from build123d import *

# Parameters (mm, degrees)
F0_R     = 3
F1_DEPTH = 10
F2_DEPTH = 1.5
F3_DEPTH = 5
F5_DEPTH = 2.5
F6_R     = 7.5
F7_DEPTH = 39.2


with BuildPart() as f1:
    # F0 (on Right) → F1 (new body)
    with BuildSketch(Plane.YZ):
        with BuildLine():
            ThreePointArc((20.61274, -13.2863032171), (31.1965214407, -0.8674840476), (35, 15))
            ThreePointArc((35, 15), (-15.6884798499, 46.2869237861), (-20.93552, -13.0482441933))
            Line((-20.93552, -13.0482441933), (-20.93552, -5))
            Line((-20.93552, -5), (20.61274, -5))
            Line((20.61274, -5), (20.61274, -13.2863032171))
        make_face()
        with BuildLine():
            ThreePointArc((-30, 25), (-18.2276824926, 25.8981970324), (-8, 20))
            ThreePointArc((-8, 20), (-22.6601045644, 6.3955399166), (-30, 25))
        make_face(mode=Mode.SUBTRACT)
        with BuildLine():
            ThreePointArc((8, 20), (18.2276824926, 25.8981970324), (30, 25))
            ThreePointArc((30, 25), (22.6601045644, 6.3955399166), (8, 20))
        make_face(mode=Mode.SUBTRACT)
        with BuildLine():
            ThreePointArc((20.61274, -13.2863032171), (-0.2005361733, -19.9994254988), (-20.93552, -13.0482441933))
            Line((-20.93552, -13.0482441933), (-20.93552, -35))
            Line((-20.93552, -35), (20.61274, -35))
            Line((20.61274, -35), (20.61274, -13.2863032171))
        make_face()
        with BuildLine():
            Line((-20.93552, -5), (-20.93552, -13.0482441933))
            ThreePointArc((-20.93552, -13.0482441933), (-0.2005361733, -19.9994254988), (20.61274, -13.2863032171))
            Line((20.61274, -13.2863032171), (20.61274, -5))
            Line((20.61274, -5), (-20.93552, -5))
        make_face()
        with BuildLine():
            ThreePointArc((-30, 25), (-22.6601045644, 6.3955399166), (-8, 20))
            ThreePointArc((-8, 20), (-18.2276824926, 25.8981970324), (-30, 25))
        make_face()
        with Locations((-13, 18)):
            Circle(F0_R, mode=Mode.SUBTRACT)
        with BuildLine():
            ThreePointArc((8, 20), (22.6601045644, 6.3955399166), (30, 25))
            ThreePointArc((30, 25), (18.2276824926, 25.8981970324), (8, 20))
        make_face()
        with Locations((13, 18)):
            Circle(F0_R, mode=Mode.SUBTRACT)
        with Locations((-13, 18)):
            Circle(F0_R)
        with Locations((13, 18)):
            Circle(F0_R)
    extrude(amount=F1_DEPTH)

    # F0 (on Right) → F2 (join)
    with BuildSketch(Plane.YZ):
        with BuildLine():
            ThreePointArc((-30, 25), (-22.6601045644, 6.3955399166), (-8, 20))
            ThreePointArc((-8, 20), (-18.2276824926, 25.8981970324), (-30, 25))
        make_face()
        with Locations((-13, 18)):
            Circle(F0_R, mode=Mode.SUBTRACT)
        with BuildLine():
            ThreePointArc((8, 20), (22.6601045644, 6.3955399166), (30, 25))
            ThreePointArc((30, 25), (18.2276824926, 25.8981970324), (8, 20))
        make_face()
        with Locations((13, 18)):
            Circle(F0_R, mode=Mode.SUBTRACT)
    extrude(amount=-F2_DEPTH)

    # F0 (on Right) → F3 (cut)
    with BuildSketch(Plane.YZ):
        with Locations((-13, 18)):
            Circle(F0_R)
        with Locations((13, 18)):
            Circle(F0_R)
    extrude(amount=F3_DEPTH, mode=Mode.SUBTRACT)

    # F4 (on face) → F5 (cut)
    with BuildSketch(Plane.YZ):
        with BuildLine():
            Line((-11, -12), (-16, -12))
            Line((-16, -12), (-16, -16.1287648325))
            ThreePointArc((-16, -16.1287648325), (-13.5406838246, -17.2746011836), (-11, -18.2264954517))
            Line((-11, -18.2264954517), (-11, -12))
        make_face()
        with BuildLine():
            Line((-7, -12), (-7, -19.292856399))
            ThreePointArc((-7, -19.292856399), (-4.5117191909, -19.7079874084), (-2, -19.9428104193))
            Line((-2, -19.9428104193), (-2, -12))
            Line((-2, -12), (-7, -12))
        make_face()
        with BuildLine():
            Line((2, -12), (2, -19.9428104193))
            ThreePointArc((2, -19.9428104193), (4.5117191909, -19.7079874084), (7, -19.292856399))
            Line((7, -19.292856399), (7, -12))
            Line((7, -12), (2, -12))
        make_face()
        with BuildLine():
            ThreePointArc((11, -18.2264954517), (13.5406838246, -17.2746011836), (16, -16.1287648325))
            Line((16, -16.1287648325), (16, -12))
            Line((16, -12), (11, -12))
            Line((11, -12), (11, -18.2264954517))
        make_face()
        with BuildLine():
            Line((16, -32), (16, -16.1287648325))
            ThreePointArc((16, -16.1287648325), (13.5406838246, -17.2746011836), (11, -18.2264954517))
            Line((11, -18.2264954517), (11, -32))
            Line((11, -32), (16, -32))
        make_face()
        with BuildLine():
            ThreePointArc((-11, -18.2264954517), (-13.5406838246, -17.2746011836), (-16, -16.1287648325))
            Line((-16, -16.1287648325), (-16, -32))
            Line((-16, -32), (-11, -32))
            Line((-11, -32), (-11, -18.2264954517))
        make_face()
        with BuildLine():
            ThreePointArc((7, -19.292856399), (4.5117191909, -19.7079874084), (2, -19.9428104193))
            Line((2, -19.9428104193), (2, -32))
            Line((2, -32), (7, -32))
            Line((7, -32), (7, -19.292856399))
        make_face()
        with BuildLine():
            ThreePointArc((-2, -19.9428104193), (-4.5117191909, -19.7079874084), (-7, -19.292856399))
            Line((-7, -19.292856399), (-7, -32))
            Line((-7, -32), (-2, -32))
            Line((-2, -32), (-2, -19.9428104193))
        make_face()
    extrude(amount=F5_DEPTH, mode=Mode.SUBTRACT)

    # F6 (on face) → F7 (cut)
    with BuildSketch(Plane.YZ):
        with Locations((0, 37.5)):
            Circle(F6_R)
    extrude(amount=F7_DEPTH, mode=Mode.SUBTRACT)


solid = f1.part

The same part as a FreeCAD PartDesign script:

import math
import FreeCAD as App
import Part
import Sketcher
Q = App.Units.Quantity

doc = App.newDocument("Part")
body = doc.addObject("PartDesign::Body", "Body")

sketch1 = doc.addObject("Sketcher::SketchObject", "Sketch")
body.addObject(sketch1)
sketch1.AttachmentSupport = (doc.YZ_Plane, [""])
sketch1.MapMode = "FlatFace"
sketch1.addGeometry(Part.ArcOfCircle(Part.Circle(App.Vector(0, 15, 0), App.Vector(0, 0, 1), 35), math.radians(-54), math.radians(0)), False)
sketch1.addGeometry(Part.ArcOfCircle(Part.Circle(App.Vector(0, 15, 0), App.Vector(0, 0, 1), 35), math.radians(0), math.radians(233)), False)
sketch1.addGeometry(Part.LineSegment(App.Vector(-21, -13, 0), App.Vector(-21, -35, 0)), False)
sketch1.addGeometry(Part.LineSegment(App.Vector(-21, -35, 0), App.Vector(21, -35, 0)), False)
sketch1.addGeometry(Part.LineSegment(App.Vector(21, -35, 0), App.Vector(21, -13, 0)), False)
sketch1.addConstraint(Sketcher.Constraint("Tangent", 0, 2, 1, 1))
sketch1.addConstraint(Sketcher.Constraint("Coincident", 1, 2, 2, 1))
sketch1.addConstraint(Sketcher.Constraint("Coincident", 2, 2, 3, 1))
sketch1.addConstraint(Sketcher.Constraint("Coincident", 3, 2, 4, 1))
sketch1.addConstraint(Sketcher.Constraint("Coincident", 4, 2, 0, 1))
sketch1.addConstraint(Sketcher.Constraint("Vertical", 2))
sketch1.addConstraint(Sketcher.Constraint("Horizontal", 3))
sketch1.addConstraint(Sketcher.Constraint("Vertical", 4))
sketch1.addConstraint(Sketcher.Constraint("Equal", 0, 1))
sketch1.addConstraint(Sketcher.Constraint("PointOnObject", 0, 3, -2))
sketch1.addConstraint(Sketcher.Constraint("Horizontal", 1, 3, 0, 2))
sketch1.addConstraint(Sketcher.Constraint("Radius", 0, Q("35 mm")))
sketch1.addConstraint(Sketcher.Constraint("DistanceY", -1, 1, 0, 3, Q("15 mm")))
sketch1.addConstraint(Sketcher.Constraint("DistanceY", 2, 2, -1, 1, Q("35 mm")))
sketch1.addConstraint(Sketcher.Constraint("DistanceX", 3, 1, 3, 2, Q("41.54826 mm")))
sketch1.addConstraint(Sketcher.Constraint("DistanceY", 2, 2, 2, 1, Q("21.951756 mm")))
pad1 = doc.addObject("PartDesign::Pad", "Pad")
body.addObject(pad1)
pad1.Profile = sketch1
pad1.Length = 10

sketch2 = doc.addObject("Sketcher::SketchObject", "Sketch001")
body.addObject(sketch2)
sketch2.AttachmentSupport = (doc.YZ_Plane, [""])
sketch2.MapMode = "FlatFace"
sketch2.addGeometry(Part.ArcOfCircle(Part.Circle(App.Vector(-20, 18.2, 0), App.Vector(0, 0, 1), 12.1), math.radians(146), math.radians(369)), False)
sketch2.addGeometry(Part.ArcOfCircle(Part.Circle(App.Vector(-22.7, 6.4, 0), App.Vector(0, 0, 1), 20), math.radians(43), math.radians(112)), False)
sketch2.addGeometry(Part.Circle(App.Vector(-13, 18, 0), App.Vector(0, 0, 1), 3), False)
sketch2.addGeometry(Part.ArcOfCircle(Part.Circle(App.Vector(20, 18.2, 0), App.Vector(0, 0, 1), 12.1), math.radians(171), math.radians(394)), False)
sketch2.addGeometry(Part.ArcOfCircle(Part.Circle(App.Vector(22.7, 6.4, 0), App.Vector(0, 0, 1), 20), math.radians(68), math.radians(137)), False)
sketch2.addGeometry(Part.Circle(App.Vector(13, 18, 0), App.Vector(0, 0, 1), 3), False)
sketch2.addConstraint(Sketcher.Constraint("Coincident", 0, 1, 1, 2))
sketch2.addConstraint(Sketcher.Constraint("Coincident", 1, 1, 0, 2))
sketch2.addConstraint(Sketcher.Constraint("Coincident", 3, 1, 4, 2))
sketch2.addConstraint(Sketcher.Constraint("Coincident", 4, 1, 3, 2))
sketch2.addConstraint(Sketcher.Constraint("Equal", 0, 3))
sketch2.addConstraint(Sketcher.Constraint("Equal", 1, 4))
sketch2.addConstraint(Sketcher.Constraint("Equal", 2, 5))
sketch2.addConstraint(Sketcher.Constraint("Symmetric", 0, 3, 3, 3, -2))
sketch2.addConstraint(Sketcher.Constraint("Symmetric", 1, 3, 4, 3, -2))
sketch2.addConstraint(Sketcher.Constraint("Symmetric", 2, 3, 5, 3, -2))
sketch2.addConstraint(Sketcher.Constraint("Diameter", 2, Q("6 mm")))
sketch2.addConstraint(Sketcher.Constraint("Radius", 1, Q("20 mm")))
sketch2.addConstraint(Sketcher.Constraint("DistanceX", 2, 3, -1, 1, Q("13 mm")))
sketch2.addConstraint(Sketcher.Constraint("DistanceY", -1, 1, 2, 3, Q("18 mm")))
sketch2.addConstraint(Sketcher.Constraint("DistanceX", 0, 1, -1, 1, Q("30 mm")))
sketch2.addConstraint(Sketcher.Constraint("DistanceY", -1, 1, 0, 1, Q("25 mm")))
sketch2.addConstraint(Sketcher.Constraint("DistanceX", 1, 1, -1, 1, Q("8 mm")))
sketch2.addConstraint(Sketcher.Constraint("DistanceY", -1, 1, 1, 1, Q("20 mm")))
sketch2.addConstraint(Sketcher.Constraint("Radius", 0, Q("12.110097 mm")))
pad2 = doc.addObject("PartDesign::Pad", "Pad001")
body.addObject(pad2)
pad2.Profile = sketch2
pad2.Length = 1.5
pad2.Reversed = True

sketch3 = doc.addObject("Sketcher::SketchObject", "Sketch002")
body.addObject(sketch3)
sketch3.AttachmentSupport = (doc.YZ_Plane, [""])
sketch3.MapMode = "FlatFace"
sketch3.addGeometry(Part.Circle(App.Vector(-13, 18, 0), App.Vector(0, 0, 1), 3), False)
sketch3.addGeometry(Part.Circle(App.Vector(13, 18, 0), App.Vector(0, 0, 1), 3), False)
sketch3.addConstraint(Sketcher.Constraint("Equal", 0, 1))
sketch3.addConstraint(Sketcher.Constraint("Symmetric", 0, 3, 1, 3, -2))
sketch3.addConstraint(Sketcher.Constraint("Diameter", 0, Q("6 mm")))
sketch3.addConstraint(Sketcher.Constraint("DistanceX", 0, 3, -1, 1, Q("13 mm")))
sketch3.addConstraint(Sketcher.Constraint("DistanceY", -1, 1, 0, 3, Q("18 mm")))
pocket1 = doc.addObject("PartDesign::Pocket", "Pocket")
body.addObject(pocket1)
pocket1.Profile = sketch3
pocket1.Length = 5
pocket1.Reversed = True

sketch4 = doc.addObject("Sketcher::SketchObject", "Sketch003")
body.addObject(sketch4)
sketch4.AttachmentSupport = (doc.YZ_Plane, [""])
sketch4.MapMode = "FlatFace"
sketch4.addGeometry(Part.LineSegment(App.Vector(-11, -12, 0), App.Vector(-16, -12, 0)), False)
sketch4.addGeometry(Part.LineSegment(App.Vector(-16, -12, 0), App.Vector(-16, -32, 0)), False)
sketch4.addGeometry(Part.LineSegment(App.Vector(-16, -32, 0), App.Vector(-11, -32, 0)), False)
sketch4.addGeometry(Part.LineSegment(App.Vector(-11, -32, 0), App.Vector(-11, -12, 0)), False)
sketch4.addGeometry(Part.LineSegment(App.Vector(-7, -12, 0), App.Vector(-7, -32, 0)), False)
sketch4.addGeometry(Part.LineSegment(App.Vector(-7, -32, 0), App.Vector(-2, -32, 0)), False)
sketch4.addGeometry(Part.LineSegment(App.Vector(-2, -32, 0), App.Vector(-2, -12, 0)), False)
sketch4.addGeometry(Part.LineSegment(App.Vector(-2, -12, 0), App.Vector(-7, -12, 0)), False)
sketch4.addGeometry(Part.LineSegment(App.Vector(2, -12, 0), App.Vector(2, -32, 0)), False)
sketch4.addGeometry(Part.LineSegment(App.Vector(2, -32, 0), App.Vector(7, -32, 0)), False)
sketch4.addGeometry(Part.LineSegment(App.Vector(7, -32, 0), App.Vector(7, -12, 0)), False)
sketch4.addGeometry(Part.LineSegment(App.Vector(7, -12, 0), App.Vector(2, -12, 0)), False)
sketch4.addGeometry(Part.LineSegment(App.Vector(16, -12, 0), App.Vector(11, -12, 0)), False)
sketch4.addGeometry(Part.LineSegment(App.Vector(11, -12, 0), App.Vector(11, -32, 0)), False)
sketch4.addGeometry(Part.LineSegment(App.Vector(11, -32, 0), App.Vector(16, -32, 0)), False)
sketch4.addGeometry(Part.LineSegment(App.Vector(16, -32, 0), App.Vector(16, -12, 0)), False)
sketch4.addConstraint(Sketcher.Constraint("Coincident", 0, 2, 1, 1))
sketch4.addConstraint(Sketcher.Constraint("Coincident", 1, 2, 2, 1))
sketch4.addConstraint(Sketcher.Constraint("Coincident", 2, 2, 3, 1))
sketch4.addConstraint(Sketcher.Constraint("Coincident", 3, 2, 0, 1))
sketch4.addConstraint(Sketcher.Constraint("Coincident", 4, 2, 5, 1))
sketch4.addConstraint(Sketcher.Constraint("Coincident", 5, 2, 6, 1))
sketch4.addConstraint(Sketcher.Constraint("Coincident", 6, 2, 7, 1))
sketch4.addConstraint(Sketcher.Constraint("Coincident", 7, 2, 4, 1))
sketch4.addConstraint(Sketcher.Constraint("Coincident", 8, 2, 9, 1))
sketch4.addConstraint(Sketcher.Constraint("Coincident", 9, 2, 10, 1))
sketch4.addConstraint(Sketcher.Constraint("Coincident", 10, 2, 11, 1))
sketch4.addConstraint(Sketcher.Constraint("Coincident", 11, 2, 8, 1))
sketch4.addConstraint(Sketcher.Constraint("Coincident", 12, 2, 13, 1))
sketch4.addConstraint(Sketcher.Constraint("Coincident", 13, 2, 14, 1))
sketch4.addConstraint(Sketcher.Constraint("Coincident", 14, 2, 15, 1))
sketch4.addConstraint(Sketcher.Constraint("Coincident", 15, 2, 12, 1))
sketch4.addConstraint(Sketcher.Constraint("Horizontal", 0))
sketch4.addConstraint(Sketcher.Constraint("Vertical", 1))
sketch4.addConstraint(Sketcher.Constraint("Horizontal", 2))
sketch4.addConstraint(Sketcher.Constraint("Vertical", 3))
sketch4.addConstraint(Sketcher.Constraint("Vertical", 4))
sketch4.addConstraint(Sketcher.Constraint("Horizontal", 5))
sketch4.addConstraint(Sketcher.Constraint("Vertical", 6))
sketch4.addConstraint(Sketcher.Constraint("Horizontal", 7))
sketch4.addConstraint(Sketcher.Constraint("Vertical", 8))
sketch4.addConstraint(Sketcher.Constraint("Horizontal", 9))
sketch4.addConstraint(Sketcher.Constraint("Vertical", 10))
sketch4.addConstraint(Sketcher.Constraint("Horizontal", 11))
sketch4.addConstraint(Sketcher.Constraint("Horizontal", 12))
sketch4.addConstraint(Sketcher.Constraint("Vertical", 13))
sketch4.addConstraint(Sketcher.Constraint("Horizontal", 14))
sketch4.addConstraint(Sketcher.Constraint("Vertical", 15))
sketch4.addConstraint(Sketcher.Constraint("Symmetric", 5, 2, 8, 2, -2))
sketch4.addConstraint(Sketcher.Constraint("Symmetric", 7, 2, 10, 2, -2))
sketch4.addConstraint(Sketcher.Constraint("Symmetric", 3, 2, 12, 2, -2))
sketch4.addConstraint(Sketcher.Constraint("Symmetric", 1, 2, 14, 2, -2))
sketch4.addConstraint(Sketcher.Constraint("Horizontal", 2, 2, 4, 2))
sketch4.addConstraint(Sketcher.Constraint("Horizontal", 3, 2, 6, 2))
sketch4.addConstraint(Sketcher.Constraint("Equal", 2, 5))
sketch4.addConstraint(Sketcher.Constraint("DistanceX", 0, 2, 0, 1, Q("5 mm")))
sketch4.addConstraint(Sketcher.Constraint("DistanceY", 1, 2, 1, 1, Q("20 mm")))
sketch4.addConstraint(Sketcher.Constraint("DistanceX", 0, 2, -1, 1, Q("16 mm")))
sketch4.addConstraint(Sketcher.Constraint("DistanceY", 0, 2, -1, 1, Q("12 mm")))
sketch4.addConstraint(Sketcher.Constraint("DistanceX", 4, 2, -1, 1, Q("7 mm")))
pocket2 = doc.addObject("PartDesign::Pocket", "Pocket001")
body.addObject(pocket2)
pocket2.Profile = sketch4
pocket2.Length = 2.5
pocket2.Reversed = True

sketch5 = doc.addObject("Sketcher::SketchObject", "Sketch004")
body.addObject(sketch5)
sketch5.AttachmentSupport = (doc.YZ_Plane, [""])
sketch5.MapMode = "FlatFace"
sketch5.addGeometry(Part.Circle(App.Vector(0, 38, 0), App.Vector(0, 0, 1), 8), False)
sketch5.addConstraint(Sketcher.Constraint("PointOnObject", 0, 3, -2))
sketch5.addConstraint(Sketcher.Constraint("Diameter", 0, Q("15 mm")))
sketch5.addConstraint(Sketcher.Constraint("DistanceY", -1, 1, 0, 3, Q("37.5 mm")))
pocket3 = doc.addObject("PartDesign::Pocket", "Pocket002")
body.addObject(pocket3)
pocket3.Profile = sketch5
pocket3.Length = 39.2
pocket3.Reversed = True

doc.recompute()
